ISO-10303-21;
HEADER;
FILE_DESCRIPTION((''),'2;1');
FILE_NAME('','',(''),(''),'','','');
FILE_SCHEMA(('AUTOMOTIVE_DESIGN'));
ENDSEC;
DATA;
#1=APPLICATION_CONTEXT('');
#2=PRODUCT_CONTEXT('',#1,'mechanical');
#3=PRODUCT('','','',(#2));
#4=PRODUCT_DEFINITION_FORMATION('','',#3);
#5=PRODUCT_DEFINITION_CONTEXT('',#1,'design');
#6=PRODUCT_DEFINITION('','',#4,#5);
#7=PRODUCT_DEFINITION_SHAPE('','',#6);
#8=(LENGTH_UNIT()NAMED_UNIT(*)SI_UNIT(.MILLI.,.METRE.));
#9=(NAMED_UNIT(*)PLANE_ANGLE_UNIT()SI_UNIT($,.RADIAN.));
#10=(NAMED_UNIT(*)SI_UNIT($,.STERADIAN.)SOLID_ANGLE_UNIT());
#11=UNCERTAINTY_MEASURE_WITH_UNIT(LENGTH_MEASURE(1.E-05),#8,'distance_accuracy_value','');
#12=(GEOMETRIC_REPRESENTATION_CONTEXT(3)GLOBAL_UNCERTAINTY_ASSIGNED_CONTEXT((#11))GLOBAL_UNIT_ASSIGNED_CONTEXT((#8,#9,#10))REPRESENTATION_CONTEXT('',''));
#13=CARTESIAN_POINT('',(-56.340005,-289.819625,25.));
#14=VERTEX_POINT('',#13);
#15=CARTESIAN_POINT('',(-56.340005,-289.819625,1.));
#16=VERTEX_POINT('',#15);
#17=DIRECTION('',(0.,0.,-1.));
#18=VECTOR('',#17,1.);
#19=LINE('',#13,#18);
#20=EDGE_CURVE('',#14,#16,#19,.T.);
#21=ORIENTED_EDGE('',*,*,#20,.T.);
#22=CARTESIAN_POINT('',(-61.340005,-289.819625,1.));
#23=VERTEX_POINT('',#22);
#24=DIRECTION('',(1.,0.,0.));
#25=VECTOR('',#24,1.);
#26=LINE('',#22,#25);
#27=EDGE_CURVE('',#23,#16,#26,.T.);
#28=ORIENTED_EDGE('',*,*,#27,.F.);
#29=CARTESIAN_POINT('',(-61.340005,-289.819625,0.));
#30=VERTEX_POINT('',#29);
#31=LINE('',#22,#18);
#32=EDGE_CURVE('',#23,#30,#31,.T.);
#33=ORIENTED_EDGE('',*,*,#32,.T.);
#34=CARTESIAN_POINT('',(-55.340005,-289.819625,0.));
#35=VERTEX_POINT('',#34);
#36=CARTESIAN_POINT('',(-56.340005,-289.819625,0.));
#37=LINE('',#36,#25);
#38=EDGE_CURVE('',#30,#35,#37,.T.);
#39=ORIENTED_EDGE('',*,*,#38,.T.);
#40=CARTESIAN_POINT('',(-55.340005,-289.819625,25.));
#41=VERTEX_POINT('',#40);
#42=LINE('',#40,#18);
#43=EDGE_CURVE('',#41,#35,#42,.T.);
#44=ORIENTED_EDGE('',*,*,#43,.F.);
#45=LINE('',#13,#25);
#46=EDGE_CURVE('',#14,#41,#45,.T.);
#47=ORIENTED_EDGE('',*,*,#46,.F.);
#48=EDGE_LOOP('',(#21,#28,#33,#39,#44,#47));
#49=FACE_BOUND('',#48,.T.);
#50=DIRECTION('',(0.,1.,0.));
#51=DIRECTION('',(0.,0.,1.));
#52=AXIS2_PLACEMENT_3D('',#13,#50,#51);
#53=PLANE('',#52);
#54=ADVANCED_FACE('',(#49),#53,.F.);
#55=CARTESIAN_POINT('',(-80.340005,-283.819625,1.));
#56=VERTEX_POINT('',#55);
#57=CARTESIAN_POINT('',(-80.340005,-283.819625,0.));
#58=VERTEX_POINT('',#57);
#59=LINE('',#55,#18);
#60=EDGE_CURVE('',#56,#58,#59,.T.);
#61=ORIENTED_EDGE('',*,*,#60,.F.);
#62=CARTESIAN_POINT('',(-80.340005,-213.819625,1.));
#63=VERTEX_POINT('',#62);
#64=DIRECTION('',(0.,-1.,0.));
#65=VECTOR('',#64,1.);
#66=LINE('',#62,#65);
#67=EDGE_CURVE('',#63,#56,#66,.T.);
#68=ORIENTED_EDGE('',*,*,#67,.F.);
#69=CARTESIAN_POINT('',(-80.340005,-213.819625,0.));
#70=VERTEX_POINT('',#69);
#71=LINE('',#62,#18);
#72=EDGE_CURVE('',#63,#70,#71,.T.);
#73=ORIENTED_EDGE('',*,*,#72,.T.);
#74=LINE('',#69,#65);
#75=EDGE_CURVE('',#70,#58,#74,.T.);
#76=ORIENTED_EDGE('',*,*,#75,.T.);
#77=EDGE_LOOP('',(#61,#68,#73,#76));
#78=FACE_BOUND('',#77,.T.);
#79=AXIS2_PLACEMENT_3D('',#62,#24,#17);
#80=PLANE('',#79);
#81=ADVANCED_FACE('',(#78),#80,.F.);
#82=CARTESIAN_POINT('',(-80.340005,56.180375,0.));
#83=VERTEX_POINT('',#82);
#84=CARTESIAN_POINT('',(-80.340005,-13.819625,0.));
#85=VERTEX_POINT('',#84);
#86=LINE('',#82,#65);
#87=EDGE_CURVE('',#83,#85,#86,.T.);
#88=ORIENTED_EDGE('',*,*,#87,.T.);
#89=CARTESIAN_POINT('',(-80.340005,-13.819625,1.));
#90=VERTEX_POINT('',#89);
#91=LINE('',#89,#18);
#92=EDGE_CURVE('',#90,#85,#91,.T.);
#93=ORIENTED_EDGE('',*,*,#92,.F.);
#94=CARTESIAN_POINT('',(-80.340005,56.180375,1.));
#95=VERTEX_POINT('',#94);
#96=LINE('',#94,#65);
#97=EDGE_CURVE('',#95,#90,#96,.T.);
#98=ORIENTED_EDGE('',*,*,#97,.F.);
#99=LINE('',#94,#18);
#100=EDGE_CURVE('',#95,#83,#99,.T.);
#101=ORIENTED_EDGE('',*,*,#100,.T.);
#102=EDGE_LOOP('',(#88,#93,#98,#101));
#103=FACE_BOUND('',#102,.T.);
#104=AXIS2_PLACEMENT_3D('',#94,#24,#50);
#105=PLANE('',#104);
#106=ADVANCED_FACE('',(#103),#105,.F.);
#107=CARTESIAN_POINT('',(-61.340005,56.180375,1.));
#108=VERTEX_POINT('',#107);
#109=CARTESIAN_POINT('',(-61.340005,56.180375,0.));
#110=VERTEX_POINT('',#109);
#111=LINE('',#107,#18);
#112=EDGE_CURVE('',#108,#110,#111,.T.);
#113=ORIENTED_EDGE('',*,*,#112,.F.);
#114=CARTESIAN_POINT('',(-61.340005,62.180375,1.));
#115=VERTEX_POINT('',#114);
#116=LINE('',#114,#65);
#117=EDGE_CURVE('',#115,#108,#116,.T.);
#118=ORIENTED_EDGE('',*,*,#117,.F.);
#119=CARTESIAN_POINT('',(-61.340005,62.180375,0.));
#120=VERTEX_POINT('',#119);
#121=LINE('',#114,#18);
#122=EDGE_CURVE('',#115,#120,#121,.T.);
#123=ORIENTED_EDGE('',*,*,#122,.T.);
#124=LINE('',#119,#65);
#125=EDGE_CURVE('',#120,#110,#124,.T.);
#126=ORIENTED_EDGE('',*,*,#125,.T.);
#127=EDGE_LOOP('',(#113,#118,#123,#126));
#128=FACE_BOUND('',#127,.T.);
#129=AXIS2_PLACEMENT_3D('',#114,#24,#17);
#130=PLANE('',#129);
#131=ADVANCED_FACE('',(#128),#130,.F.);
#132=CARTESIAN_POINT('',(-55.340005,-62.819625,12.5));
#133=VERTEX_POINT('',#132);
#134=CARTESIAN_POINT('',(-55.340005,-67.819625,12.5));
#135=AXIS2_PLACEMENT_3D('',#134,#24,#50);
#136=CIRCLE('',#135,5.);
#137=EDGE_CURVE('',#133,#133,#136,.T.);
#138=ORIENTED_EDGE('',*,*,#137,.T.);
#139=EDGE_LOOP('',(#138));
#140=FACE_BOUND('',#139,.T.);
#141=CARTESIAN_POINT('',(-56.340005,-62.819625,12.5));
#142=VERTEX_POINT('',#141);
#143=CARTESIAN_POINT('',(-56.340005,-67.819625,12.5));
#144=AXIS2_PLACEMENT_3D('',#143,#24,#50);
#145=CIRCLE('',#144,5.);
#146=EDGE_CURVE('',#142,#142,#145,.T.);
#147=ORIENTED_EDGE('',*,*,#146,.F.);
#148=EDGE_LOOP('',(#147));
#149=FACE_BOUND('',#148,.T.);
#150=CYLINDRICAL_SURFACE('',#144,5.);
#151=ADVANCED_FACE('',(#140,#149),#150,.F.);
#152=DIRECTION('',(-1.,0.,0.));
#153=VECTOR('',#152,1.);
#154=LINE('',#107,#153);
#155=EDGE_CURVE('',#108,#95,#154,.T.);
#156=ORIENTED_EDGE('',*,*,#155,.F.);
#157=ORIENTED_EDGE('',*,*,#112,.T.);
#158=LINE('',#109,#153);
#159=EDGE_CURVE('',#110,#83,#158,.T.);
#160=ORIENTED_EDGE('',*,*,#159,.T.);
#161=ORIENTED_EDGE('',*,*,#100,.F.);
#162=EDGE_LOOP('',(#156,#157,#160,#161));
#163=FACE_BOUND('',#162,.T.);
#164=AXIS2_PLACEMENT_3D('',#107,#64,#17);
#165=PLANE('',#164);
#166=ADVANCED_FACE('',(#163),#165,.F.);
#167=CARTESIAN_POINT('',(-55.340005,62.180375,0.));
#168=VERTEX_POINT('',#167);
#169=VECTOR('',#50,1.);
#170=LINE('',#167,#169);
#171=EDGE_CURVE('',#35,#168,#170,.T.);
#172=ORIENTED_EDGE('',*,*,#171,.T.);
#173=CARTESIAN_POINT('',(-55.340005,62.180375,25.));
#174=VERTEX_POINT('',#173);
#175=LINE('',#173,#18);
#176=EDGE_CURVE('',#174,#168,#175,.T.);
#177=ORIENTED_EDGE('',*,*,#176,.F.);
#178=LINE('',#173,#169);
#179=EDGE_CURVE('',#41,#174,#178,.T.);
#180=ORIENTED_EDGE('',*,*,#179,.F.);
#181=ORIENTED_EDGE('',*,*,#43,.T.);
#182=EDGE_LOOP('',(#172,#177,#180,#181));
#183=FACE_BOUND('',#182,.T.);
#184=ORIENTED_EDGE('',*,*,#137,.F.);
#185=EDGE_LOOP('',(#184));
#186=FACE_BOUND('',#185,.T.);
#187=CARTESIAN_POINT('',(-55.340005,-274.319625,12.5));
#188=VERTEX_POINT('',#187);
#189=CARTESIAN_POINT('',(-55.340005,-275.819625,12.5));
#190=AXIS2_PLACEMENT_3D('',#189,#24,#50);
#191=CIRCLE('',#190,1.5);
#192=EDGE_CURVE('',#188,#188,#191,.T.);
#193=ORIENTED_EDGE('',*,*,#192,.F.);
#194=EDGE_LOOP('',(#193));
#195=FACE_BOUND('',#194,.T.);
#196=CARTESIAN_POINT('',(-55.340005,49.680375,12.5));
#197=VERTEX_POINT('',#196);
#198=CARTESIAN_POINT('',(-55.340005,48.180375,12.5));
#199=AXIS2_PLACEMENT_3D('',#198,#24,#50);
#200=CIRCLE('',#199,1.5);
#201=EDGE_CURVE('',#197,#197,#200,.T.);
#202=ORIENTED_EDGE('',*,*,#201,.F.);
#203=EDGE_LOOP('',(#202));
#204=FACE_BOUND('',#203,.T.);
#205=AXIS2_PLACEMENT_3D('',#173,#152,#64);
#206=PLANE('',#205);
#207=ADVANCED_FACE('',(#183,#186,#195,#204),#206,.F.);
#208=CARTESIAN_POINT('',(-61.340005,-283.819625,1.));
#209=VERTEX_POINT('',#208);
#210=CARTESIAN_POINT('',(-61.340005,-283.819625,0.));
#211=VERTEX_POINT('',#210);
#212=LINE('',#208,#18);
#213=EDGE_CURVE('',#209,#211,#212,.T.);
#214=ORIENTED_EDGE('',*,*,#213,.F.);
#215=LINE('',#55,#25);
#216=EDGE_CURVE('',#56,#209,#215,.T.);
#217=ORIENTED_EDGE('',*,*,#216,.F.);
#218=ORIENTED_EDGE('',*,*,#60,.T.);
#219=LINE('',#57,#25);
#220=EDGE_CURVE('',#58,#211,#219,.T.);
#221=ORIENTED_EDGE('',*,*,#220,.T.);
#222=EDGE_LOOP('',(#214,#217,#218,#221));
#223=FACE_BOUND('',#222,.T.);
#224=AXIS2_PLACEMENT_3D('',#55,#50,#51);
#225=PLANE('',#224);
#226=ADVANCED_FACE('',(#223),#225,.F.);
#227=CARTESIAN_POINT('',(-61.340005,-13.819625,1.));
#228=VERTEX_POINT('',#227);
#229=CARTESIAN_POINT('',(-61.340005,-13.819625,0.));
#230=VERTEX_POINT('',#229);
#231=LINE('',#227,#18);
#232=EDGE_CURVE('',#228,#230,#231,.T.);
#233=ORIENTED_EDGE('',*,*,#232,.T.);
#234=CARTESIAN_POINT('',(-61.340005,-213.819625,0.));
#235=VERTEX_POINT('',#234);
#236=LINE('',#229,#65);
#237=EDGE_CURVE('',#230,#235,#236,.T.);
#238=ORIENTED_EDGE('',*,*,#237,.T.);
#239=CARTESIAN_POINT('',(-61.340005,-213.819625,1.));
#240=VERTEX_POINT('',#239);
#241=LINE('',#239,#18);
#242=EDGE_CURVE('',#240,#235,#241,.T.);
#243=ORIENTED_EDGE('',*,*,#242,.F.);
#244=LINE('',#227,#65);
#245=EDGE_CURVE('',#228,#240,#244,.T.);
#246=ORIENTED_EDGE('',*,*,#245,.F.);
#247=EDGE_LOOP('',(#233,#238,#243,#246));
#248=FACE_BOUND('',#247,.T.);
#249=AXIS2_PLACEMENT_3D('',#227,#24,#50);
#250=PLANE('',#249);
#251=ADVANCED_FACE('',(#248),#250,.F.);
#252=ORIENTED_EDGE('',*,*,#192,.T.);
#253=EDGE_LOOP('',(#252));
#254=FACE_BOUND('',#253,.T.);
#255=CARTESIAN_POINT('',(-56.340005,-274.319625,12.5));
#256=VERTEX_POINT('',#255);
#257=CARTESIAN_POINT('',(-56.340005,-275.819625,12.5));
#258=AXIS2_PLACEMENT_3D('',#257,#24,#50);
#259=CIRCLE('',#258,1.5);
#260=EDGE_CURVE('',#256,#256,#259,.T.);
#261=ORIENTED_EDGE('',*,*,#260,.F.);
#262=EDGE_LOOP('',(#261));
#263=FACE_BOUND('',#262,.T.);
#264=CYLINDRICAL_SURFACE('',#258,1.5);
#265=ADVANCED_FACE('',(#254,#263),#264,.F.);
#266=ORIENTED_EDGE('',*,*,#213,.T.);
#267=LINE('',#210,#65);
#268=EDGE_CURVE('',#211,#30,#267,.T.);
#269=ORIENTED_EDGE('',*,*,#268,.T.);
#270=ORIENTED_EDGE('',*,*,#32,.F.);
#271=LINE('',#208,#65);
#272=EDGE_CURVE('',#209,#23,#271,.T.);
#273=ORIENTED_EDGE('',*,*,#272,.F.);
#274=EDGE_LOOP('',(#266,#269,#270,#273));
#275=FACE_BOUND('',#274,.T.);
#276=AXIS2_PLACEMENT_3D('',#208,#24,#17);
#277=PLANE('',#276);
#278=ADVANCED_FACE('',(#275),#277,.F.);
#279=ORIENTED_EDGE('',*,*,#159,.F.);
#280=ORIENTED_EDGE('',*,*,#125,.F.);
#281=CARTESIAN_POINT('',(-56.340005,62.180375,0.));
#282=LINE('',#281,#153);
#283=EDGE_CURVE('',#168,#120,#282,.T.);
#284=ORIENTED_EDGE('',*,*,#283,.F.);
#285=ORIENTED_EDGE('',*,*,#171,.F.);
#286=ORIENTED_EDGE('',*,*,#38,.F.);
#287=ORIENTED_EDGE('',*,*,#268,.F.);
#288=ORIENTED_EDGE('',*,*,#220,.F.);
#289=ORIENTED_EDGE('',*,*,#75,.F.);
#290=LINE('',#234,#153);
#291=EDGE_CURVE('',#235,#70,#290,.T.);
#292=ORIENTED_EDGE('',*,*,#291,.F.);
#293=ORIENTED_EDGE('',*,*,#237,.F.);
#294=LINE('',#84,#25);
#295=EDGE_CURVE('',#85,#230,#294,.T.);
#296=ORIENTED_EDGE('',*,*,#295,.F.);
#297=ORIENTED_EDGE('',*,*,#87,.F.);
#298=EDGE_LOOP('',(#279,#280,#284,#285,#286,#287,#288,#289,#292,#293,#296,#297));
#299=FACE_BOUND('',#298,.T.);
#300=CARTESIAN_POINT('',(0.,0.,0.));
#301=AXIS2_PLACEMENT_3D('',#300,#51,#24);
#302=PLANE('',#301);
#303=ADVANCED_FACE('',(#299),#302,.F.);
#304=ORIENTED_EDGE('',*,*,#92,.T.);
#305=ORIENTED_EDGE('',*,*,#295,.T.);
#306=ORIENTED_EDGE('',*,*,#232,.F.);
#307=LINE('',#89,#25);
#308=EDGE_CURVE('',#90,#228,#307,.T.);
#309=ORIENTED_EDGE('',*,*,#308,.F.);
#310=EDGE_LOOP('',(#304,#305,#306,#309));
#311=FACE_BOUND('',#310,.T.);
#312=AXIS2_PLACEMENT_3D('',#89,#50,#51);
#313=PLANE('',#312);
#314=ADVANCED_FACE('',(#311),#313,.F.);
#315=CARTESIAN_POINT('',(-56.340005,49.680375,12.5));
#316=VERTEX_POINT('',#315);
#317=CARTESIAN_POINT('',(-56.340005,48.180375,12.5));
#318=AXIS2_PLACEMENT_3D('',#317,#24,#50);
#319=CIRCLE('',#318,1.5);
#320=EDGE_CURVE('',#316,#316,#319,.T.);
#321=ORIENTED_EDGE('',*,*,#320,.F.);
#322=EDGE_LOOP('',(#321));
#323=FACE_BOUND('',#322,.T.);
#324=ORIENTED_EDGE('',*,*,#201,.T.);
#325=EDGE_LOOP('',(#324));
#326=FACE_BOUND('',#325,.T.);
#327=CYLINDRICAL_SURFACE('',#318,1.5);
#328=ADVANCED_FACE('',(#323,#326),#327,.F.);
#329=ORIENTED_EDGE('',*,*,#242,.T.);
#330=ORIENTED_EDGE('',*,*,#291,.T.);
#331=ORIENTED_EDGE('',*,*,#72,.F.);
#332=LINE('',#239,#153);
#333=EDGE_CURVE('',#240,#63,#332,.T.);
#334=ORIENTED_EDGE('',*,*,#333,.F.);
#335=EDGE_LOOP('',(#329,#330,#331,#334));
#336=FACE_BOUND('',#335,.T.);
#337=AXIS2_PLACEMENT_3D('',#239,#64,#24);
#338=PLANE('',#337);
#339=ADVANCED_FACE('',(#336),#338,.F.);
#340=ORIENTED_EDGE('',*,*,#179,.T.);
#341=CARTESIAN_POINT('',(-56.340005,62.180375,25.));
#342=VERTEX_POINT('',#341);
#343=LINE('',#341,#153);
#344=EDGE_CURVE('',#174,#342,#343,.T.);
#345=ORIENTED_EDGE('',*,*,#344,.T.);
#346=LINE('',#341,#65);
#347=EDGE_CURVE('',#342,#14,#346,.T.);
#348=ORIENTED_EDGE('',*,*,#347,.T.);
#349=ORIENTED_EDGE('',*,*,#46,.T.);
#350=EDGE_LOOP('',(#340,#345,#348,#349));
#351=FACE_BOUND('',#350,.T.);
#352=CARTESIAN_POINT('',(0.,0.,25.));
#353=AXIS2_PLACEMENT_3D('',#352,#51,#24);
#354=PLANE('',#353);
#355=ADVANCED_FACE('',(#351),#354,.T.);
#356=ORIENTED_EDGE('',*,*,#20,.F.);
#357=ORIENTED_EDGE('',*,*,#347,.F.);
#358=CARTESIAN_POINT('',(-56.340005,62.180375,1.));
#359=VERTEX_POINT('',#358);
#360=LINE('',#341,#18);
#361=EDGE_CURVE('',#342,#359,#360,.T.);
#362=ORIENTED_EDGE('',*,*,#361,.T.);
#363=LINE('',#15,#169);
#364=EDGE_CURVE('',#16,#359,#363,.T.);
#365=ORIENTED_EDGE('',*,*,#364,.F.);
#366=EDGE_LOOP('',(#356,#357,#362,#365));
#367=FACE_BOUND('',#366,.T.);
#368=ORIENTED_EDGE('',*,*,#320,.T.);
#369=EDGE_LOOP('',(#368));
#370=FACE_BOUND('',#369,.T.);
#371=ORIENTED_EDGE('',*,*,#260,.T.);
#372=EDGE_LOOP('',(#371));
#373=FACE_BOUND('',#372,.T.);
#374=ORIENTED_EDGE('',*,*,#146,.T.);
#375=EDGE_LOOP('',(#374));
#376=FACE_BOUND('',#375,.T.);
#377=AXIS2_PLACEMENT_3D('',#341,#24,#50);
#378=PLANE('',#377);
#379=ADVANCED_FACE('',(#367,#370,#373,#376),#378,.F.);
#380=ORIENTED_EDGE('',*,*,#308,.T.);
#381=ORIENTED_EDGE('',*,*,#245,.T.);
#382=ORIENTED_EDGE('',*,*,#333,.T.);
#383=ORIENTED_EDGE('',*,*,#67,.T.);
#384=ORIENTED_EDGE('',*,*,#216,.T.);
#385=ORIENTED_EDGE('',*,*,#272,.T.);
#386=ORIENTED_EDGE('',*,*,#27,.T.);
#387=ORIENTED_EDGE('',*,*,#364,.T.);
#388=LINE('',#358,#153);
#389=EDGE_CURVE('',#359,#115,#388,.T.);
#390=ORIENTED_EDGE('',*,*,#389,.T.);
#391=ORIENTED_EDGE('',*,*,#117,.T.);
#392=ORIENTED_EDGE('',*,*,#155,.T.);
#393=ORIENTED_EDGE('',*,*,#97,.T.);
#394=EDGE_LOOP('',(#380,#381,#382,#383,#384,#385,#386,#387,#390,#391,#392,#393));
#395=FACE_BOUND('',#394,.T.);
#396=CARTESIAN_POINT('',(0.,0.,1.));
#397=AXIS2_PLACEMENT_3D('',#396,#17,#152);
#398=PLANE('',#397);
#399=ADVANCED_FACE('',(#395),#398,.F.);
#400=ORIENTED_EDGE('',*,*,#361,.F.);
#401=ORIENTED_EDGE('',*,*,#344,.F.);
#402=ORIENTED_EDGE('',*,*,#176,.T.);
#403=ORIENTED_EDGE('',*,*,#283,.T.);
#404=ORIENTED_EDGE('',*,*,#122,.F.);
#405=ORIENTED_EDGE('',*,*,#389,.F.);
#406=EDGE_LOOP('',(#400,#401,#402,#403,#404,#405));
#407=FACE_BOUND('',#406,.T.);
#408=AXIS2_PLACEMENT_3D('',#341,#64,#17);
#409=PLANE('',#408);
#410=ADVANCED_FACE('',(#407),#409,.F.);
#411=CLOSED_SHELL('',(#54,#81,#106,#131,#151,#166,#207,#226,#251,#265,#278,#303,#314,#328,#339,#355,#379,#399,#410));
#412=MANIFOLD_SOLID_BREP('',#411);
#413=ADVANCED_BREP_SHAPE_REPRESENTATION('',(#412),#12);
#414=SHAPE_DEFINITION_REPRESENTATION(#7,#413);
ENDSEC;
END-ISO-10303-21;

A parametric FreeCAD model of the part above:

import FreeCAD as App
import Part
import Sketcher
from FreeCAD import Vector

doc = App.newDocument("Part")
body = doc.addObject("PartDesign::Body", "Body")

sketch1 = body.newObject("Sketcher::SketchObject", "Sketch")
sketch1.AttachmentSupport = (doc.getObject("XY_Plane"), [""])
sketch1.MapMode = "FlatFace"
sketch1.addGeometry([
    Part.LineSegment(Vector(-56.340005, 62.180375, 0), Vector(-56.340005, -289.819625, 0)),
    Part.LineSegment(Vector(-56.340005, -289.819625, 0), Vector(-55.340005, -289.819625, 0)),
    Part.LineSegment(Vector(-55.340005, -289.819625, 0), Vector(-55.340005, 62.180375, 0)),
    Part.LineSegment(Vector(-55.340005, 62.180375, 0), Vector(-56.340005, 62.180375, 0)),
], False)
sketch1.addConstraint([
    Sketcher.Constraint("Coincident", 0, 2, 1, 1),
    Sketcher.Constraint("Coincident", 1, 2, 2, 1),
    Sketcher.Constraint("Coincident", 2, 2, 3, 1),
    Sketcher.Constraint("Coincident", 3, 2, 0, 1),
    Sketcher.Constraint("Vertical", 0),
    Sketcher.Constraint("Horizontal", 1),
    Sketcher.Constraint("Vertical", 2),
    Sketcher.Constraint("Horizontal", 3),
    Sketcher.Constraint("DistanceX", 1, 1, 1, 2, 1.0),
    Sketcher.Constraint("DistanceY", 0, 2, 0, 1, 352.0),
    Sketcher.Constraint("DistanceX", 0, 2, -1, 1, 56.340005),
    Sketcher.Constraint("DistanceY", 0, 2, -1, 1, 289.819625),
])
pad1 = body.newObject("PartDesign::Pad", "Pad")
pad1.Profile = sketch1
pad1.Length = 25

sketch2 = body.newObject("Sketcher::SketchObject", "Sketch001")
sketch2.AttachmentSupport = (doc.getObject("YZ_Plane"), [""])
sketch2.MapMode = "FlatFace"
sketch2.AttachmentOffset = App.Placement(Vector(0, 0, -55.340005), App.Rotation())
sketch2.addGeometry([
    Part.Circle(Vector(48.180375, 12.5, 0), Vector(0, 0, 1), 1.5),
    Part.Circle(Vector(-275.819625, 12.5, 0), Vector(0, 0, 1), 1.5),
    Part.Circle(Vector(-67.819625, 12.5, 0), Vector(0, 0, 1), 5),
], False)
sketch2.addConstraint([
    Sketcher.Constraint("Equal", 0, 1),
    Sketcher.Constraint("Horizontal", 0, 3, 1, 3),
    Sketcher.Constraint("Horizontal", 1, 3, 2, 3),
    Sketcher.Constraint("Diameter", 0, 3.0),
    Sketcher.Constraint("Diameter", 2, 10.0),
    Sketcher.Constraint("DistanceX", 1, 3, 0, 3, 324.0),
    Sketcher.Constraint("DistanceX", 2, 3, 0, 3, 116.0),
    Sketcher.Constraint("DistanceY", -1, 1, 0, 3, 12.5),
    Sketcher.Constraint("DistanceX", -1, 1, 0, 3, 48.180375),
])
pocket1 = body.newObject("PartDesign::Pocket", "Pocket")
pocket1.Profile = sketch2
pocket1.Length = 1

sketch3 = body.newObject("Sketcher::SketchObject", "Sketch002")
sketch3.AttachmentSupport = (doc.getObject("XY_Plane"), [""])
sketch3.MapMode = "FlatFace"
sketch3.addGeometry([
    Part.LineSegment(Vector(-56.340005, 62.180375, 0), Vector(-61.340005, 62.180375, 0)),
    Part.LineSegment(Vector(-61.340005, 62.180375, 0), Vector(-61.340005, 56.180375, 0)),
    Part.LineSegment(Vector(-61.340005, 56.180375, 0), Vector(-80.340005, 56.180375, 0)),
    Part.LineSegment(Vector(-80.340005, 56.180375, 0), Vector(-80.340005, -13.819625, 0)),
    Part.LineSegment(Vector(-80.340005, -13.819625, 0), Vector(-61.340005, -13.819625, 0)),
    Part.LineSegment(Vector(-61.340005, -13.819625, 0), Vector(-61.340005, -213.819625, 0)),
    Part.LineSegment(Vector(-61.340005, -213.819625, 0), Vector(-80.340005, -213.819625, 0)),
    Part.LineSegment(Vector(-80.340005, -213.819625, 0), Vector(-80.340005, -283.819625, 0)),
    Part.LineSegment(Vector(-80.340005, -283.819625, 0), Vector(-61.340005, -283.819625, 0)),
    Part.LineSegment(Vector(-61.340005, -283.819625, 0), Vector(-61.340005, -289.819625, 0)),
    Part.LineSegment(Vector(-61.340005, -289.819625, 0), Vector(-56.340005, -289.819625, 0)),
    Part.LineSegment(Vector(-56.340005, -289.819625, 0), Vector(-56.340005, 62.180375, 0)),
], False)
sketch3.addConstraint([
    Sketcher.Constraint("Coincident", 0, 2, 1, 1),
    Sketcher.Constraint("Coincident", 1, 2, 2, 1),
    Sketcher.Constraint("Coincident", 2, 2, 3, 1),
    Sketcher.Constraint("Coincident", 3, 2, 4, 1),
    Sketcher.Constraint("Coincident", 4, 2, 5, 1),
    Sketcher.Constraint("Coincident", 5, 2, 6, 1),
    Sketcher.Constraint("Coincident", 6, 2, 7, 1),
    Sketcher.Constraint("Coincident", 7, 2, 8, 1),
    Sketcher.Constraint("Coincident", 8, 2, 9, 1),
    Sketcher.Constraint("Coincident", 9, 2, 10, 1),
    Sketcher.Constraint("Coincident", 10, 2, 11, 1),
    Sketcher.Constraint("Coincident", 11, 2, 0, 1),
    Sketcher.Constraint("Horizontal", 0),
    Sketcher.Constraint("Vertical", 1),
    Sketcher.Constraint("Horizontal", 2),
    Sketcher.Constraint("Vertical", 3),
    Sketcher.Constraint("Horizontal", 4),
    Sketcher.Constraint("Vertical", 5),
    Sketcher.Constraint("Horizontal", 6),
    Sketcher.Constraint("Vertical", 7),
    Sketcher.Constraint("Horizontal", 8),
    Sketcher.Constraint("Vertical", 9),
    Sketcher.Constraint("Horizontal", 10),
    Sketcher.Constraint("Vertical", 11),
    Sketcher.Constraint("Vertical", 1, 2, 4, 2),
    Sketcher.Constraint("Vertical", 3, 2, 6, 2),
    Sketcher.Constraint("Vertical", 5, 2, 8, 2),
    Sketcher.Constraint("Equal", 3, 7),
    Sketcher.Constraint("Equal", 1, 9),
    Sketcher.Constraint("DistanceX", 0, 2, 0, 1, 5.0),
    Sketcher.Constraint("DistanceX", 2, 2, 2, 1, 19.0),
    Sketcher.Constraint("DistanceY", 1, 2, 1, 1, 6.0),
    Sketcher.Constraint("DistanceY", 3, 2, 3, 1, 70.0),
    Sketcher.Constraint("DistanceY", 5, 2, 5, 1, 200.0),
    Sketcher.Constraint("DistanceX", 0, 2, -1, 1, 61.340005),
    Sketcher.Constraint("DistanceY", -1, 1, 0, 2, 62.180375),
])
pad2 = body.newObject("PartDesign::Pad", "Pad001")
pad2.Profile = sketch3
pad2.Length = 1

doc.recompute()
